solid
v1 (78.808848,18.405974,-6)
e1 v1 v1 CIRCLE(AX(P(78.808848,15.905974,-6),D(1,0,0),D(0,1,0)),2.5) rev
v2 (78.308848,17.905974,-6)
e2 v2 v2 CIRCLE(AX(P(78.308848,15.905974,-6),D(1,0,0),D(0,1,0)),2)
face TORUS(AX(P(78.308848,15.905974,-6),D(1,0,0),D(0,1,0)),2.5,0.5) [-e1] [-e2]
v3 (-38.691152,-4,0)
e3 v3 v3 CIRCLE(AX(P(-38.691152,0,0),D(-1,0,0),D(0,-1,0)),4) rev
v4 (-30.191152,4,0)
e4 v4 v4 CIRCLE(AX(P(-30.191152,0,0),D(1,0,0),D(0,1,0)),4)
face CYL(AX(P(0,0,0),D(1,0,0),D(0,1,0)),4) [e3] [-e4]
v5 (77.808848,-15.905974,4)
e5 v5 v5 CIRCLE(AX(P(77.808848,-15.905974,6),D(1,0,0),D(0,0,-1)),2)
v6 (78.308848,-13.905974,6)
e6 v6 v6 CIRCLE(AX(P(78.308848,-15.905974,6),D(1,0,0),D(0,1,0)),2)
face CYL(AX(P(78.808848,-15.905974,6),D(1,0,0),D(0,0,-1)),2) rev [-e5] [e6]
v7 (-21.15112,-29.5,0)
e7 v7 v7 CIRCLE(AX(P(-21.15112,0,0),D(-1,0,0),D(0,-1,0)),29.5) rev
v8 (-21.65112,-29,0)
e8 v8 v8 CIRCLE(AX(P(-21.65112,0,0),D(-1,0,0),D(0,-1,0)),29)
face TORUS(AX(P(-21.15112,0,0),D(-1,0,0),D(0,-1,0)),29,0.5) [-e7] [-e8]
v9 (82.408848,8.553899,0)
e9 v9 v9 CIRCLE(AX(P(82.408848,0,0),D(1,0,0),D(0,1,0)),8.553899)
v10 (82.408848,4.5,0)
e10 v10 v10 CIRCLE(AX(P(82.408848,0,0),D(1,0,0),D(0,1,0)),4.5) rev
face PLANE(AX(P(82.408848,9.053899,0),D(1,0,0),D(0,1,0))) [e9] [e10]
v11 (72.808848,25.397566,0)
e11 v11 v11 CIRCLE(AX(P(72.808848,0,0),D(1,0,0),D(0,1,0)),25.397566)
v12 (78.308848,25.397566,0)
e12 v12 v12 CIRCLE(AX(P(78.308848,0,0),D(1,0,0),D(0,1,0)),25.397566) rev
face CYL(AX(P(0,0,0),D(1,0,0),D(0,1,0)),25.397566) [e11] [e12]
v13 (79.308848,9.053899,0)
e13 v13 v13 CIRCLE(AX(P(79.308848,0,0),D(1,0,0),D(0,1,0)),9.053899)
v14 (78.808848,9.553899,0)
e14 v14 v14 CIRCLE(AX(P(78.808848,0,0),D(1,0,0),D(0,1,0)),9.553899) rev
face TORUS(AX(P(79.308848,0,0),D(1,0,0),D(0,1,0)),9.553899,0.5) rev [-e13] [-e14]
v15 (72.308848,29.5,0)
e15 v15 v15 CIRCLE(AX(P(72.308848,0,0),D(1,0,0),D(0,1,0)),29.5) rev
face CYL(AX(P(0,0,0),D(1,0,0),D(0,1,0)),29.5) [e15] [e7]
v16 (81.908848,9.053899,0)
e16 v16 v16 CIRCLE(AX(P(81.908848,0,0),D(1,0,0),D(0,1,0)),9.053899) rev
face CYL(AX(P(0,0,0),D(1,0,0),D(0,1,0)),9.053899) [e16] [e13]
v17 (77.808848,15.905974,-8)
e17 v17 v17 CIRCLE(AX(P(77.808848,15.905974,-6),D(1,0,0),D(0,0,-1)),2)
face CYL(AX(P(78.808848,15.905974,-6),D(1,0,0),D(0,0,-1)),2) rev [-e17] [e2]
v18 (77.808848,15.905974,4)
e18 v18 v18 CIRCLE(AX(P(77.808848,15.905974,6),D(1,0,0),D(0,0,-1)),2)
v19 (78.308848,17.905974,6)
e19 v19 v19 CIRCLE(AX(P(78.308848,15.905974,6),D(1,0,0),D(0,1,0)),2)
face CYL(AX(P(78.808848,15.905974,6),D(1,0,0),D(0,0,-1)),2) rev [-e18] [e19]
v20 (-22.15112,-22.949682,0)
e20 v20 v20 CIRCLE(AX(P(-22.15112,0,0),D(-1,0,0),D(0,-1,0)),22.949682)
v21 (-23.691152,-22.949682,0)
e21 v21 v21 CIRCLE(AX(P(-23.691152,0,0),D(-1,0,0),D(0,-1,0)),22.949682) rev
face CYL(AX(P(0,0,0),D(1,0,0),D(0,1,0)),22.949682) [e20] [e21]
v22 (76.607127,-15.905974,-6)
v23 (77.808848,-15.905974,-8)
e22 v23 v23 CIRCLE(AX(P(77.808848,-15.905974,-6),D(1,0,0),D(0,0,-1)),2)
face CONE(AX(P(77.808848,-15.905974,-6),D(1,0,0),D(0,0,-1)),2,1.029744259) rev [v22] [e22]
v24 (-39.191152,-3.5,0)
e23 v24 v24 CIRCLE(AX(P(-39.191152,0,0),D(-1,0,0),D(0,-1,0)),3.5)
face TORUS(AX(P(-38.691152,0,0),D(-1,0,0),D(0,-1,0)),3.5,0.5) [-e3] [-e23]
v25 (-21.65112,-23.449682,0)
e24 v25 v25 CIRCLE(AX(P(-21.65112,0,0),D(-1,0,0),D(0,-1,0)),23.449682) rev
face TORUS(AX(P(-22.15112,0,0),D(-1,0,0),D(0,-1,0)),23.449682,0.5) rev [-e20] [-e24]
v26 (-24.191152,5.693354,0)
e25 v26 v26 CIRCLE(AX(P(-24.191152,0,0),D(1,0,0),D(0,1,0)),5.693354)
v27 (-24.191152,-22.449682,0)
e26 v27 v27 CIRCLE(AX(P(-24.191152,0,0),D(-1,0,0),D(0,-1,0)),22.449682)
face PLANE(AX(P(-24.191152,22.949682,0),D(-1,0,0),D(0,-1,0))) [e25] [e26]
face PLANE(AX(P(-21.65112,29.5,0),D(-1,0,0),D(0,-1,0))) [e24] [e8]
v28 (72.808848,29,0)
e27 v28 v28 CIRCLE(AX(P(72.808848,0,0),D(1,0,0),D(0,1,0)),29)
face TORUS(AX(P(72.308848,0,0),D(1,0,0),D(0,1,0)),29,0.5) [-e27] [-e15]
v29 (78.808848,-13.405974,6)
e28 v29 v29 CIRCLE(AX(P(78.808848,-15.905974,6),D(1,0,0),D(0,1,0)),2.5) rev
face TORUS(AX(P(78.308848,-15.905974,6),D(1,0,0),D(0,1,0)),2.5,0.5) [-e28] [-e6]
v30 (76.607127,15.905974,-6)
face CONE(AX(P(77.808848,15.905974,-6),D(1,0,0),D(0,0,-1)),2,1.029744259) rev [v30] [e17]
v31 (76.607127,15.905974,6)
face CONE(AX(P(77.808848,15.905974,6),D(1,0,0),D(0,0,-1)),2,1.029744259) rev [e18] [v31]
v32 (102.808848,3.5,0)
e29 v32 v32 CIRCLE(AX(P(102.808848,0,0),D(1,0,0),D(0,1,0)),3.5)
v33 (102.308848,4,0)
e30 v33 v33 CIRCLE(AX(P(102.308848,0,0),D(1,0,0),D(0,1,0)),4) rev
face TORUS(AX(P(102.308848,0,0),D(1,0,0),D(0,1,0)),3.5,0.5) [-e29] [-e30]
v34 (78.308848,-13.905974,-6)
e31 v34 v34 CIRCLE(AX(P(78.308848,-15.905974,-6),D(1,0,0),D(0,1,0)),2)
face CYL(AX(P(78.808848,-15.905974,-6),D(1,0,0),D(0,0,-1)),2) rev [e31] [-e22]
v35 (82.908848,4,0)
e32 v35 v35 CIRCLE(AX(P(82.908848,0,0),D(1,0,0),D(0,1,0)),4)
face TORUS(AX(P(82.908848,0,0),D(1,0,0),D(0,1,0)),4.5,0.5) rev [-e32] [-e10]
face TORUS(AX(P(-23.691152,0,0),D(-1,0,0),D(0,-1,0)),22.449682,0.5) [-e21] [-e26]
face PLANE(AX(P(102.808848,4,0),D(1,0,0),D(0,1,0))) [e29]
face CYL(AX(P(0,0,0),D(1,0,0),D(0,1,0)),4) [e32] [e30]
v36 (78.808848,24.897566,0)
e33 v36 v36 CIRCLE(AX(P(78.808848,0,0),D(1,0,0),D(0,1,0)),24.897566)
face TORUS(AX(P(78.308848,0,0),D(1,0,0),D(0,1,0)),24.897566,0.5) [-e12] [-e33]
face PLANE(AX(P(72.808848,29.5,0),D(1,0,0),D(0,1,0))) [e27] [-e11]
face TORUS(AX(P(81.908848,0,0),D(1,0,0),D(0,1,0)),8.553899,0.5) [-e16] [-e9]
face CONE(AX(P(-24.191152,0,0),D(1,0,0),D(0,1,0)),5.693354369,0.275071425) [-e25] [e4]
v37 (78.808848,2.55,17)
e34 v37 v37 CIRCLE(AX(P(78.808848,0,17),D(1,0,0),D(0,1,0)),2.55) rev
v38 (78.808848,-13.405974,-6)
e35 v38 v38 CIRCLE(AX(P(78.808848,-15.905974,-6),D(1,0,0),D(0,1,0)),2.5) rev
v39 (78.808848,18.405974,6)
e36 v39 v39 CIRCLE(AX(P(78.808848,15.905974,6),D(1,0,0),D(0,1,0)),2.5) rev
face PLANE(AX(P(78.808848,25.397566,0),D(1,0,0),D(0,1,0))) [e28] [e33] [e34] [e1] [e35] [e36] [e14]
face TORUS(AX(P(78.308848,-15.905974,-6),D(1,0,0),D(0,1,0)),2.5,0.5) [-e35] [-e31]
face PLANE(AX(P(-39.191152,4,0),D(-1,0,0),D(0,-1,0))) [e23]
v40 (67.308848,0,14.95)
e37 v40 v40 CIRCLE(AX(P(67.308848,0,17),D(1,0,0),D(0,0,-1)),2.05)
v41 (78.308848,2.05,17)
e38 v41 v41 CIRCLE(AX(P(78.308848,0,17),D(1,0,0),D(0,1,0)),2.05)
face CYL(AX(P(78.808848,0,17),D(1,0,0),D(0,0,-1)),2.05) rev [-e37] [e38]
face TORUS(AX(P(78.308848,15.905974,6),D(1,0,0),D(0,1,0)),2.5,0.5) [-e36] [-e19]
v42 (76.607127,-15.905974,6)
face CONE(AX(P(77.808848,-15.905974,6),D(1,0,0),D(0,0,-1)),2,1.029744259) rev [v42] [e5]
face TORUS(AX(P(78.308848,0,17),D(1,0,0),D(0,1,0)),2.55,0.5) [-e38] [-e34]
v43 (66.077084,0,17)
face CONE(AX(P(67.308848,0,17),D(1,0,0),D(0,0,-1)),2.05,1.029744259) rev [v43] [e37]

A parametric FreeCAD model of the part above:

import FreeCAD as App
import Part
import Sketcher

V = App.Vector


def edges_at(feature, points):
    """Names of the edges that pass closest to the given points."""
    edges = feature.Shape.Edges
    near = lambda p: min(range(len(edges)), key=lambda i: edges[i].distToShape(Part.Vertex(*p))[0])
    return sorted({f"Edge{near(p) + 1}" for p in points})

doc = App.newDocument("Part")
params = doc.addObject("Spreadsheet::Sheet", "Params")
for row, (alias, value) in enumerate([
    ("sketch1_width", "9 mm"),
    ("sketch1_width2", "142 mm"),
    ("sketch1_width3", "6 mm"),
    ("sketch1_height", "4 mm"),
    ("sketch1_width4", "20.4 mm"),
    ("revolution_angle", "360 deg"),
    ("sketch2_diameter", "4 mm"),
    ("hole_diameter", "4 mm"),
    ("hole_depth", "1 mm"),
    ("sketch3_diameter", "4.1 mm"),
    ("hole2_diameter", "4.1 mm"),
    ("hole2_depth", "11.5 mm"),
    ("fillet_radius", "0.5 mm"),
], start=1):
    params.set(f"A{row}", alias)
    params.set(f"B{row}", "=" + value)
    params.setAlias(f"B{row}", alias)

body = doc.addObject("PartDesign::Body", "Body")

# Sketch on XY plane
sketch1 = body.newObject("Sketcher::SketchObject", "Sketch")
sketch1.AttachmentSupport = (doc.getObject("XY_Plane"), [""])
sketch1.MapMode = "FlatFace"
sketch1.addGeometry(Part.LineSegment(V(72.808848, 29.5, 0), V(-21.65112, 29.5, 0)), False)
sketch1.addGeometry(Part.LineSegment(V(-21.65112, 29.5, 0), V(-21.65112, 22.949682, 0)), False)
sketch1.addGeometry(Part.LineSegment(V(-21.65112, 22.949682, 0), V(-24.191152, 22.949682, 0)), False)
sketch1.addGeometry(Part.LineSegment(V(-24.191152, 22.949682, 0), V(-24.191152, 5.693354, 0)), False)
sketch1.addGeometry(Part.LineSegment(V(-24.191152, 5.693354, 0), V(-30.191152, 4, 0)), False)
sketch1.addGeometry(Part.LineSegment(V(-30.191152, 4, 0), V(-39.191152, 4, 0)), False)
sketch1.addGeometry(Part.LineSegment(V(-39.191152, 4, 0), V(-39.191152, 0, 0)), False)
sketch1.addGeometry(Part.LineSegment(V(-39.191152, 0, 0), V(102.808848, 0, 0)), False)
sketch1.addGeometry(Part.LineSegment(V(102.808848, 0, 0), V(102.808848, 4, 0)), False)
sketch1.addGeometry(Part.LineSegment(V(102.808848, 4, 0), V(82.408848, 4, 0)), False)
sketch1.addGeometry(Part.LineSegment(V(82.408848, 4, 0), V(82.408848, 9.053899, 0)), False)
sketch1.addGeometry(Part.LineSegment(V(82.408848, 9.053899, 0), V(78.808848, 9.053899, 0)), False)
sketch1.addGeometry(Part.LineSegment(V(78.808848, 9.053899, 0), V(78.808848, 25.397566, 0)), False)
sketch1.addGeometry(Part.LineSegment(V(78.808848, 25.397566, 0), V(72.808848, 25.397566, 0)), False)
sketch1.addGeometry(Part.LineSegment(V(72.808848, 25.397566, 0), V(72.808848, 29.5, 0)), False)
sketch1.addConstraint(Sketcher.Constraint("Coincident", 0, 2, 1, 1))
sketch1.addConstraint(Sketcher.Constraint("Coincident", 1, 2, 2, 1))
sketch1.addConstraint(Sketcher.Constraint("Coincident", 2, 2, 3, 1))
sketch1.addConstraint(Sketcher.Constraint("Coincident", 3, 2, 4, 1))
sketch1.addConstraint(Sketcher.Constraint("Coincident", 4, 2, 5, 1))
sketch1.addConstraint(Sketcher.Constraint("Coincident", 5, 2, 6, 1))
sketch1.addConstraint(Sketcher.Constraint("Coincident", 6, 2, 7, 1))
sketch1.addConstraint(Sketcher.Constraint("Coincident", 7, 2, 8, 1))
sketch1.addConstraint(Sketcher.Constraint("Coincident", 8, 2, 9, 1))
sketch1.addConstraint(Sketcher.Constraint("Coincident", 9, 2, 10, 1))
sketch1.addConstraint(Sketcher.Constraint("Coincident", 10, 2, 11, 1))
sketch1.addConstraint(Sketcher.Constraint("Coincident", 11, 2, 12, 1))
sketch1.addConstraint(Sketcher.Constraint("Coincident", 12, 2, 13, 1))
sketch1.addConstraint(Sketcher.Constraint("Coincident", 13, 2, 14, 1))
sketch1.addConstraint(Sketcher.Constraint("Coincident", 14, 2, 0, 1))
sketch1.addConstraint(Sketcher.Constraint("Horizontal", 0))
sketch1.addConstraint(Sketcher.Constraint("Vertical", 1))
sketch1.addConstraint(Sketcher.Constraint("Horizontal", 2))
sketch1.addConstraint(Sketcher.Constraint("Vertical", 3))
sketch1.addConstraint(Sketcher.Constraint("Horizontal", 5))
sketch1.addConstraint(Sketcher.Constraint("Vertical", 6))
sketch1.addConstraint(Sketcher.Constraint("Horizontal", 7))
sketch1.addConstraint(Sketcher.Constraint("Vertical", 8))
sketch1.addConstraint(Sketcher.Constraint("Horizontal", 9))
sketch1.addConstraint(Sketcher.Constraint("Vertical", 10))
sketch1.addConstraint(Sketcher.Constraint("Horizontal", 11))
sketch1.addConstraint(Sketcher.Constraint("Vertical", 12))
sketch1.addConstraint(Sketcher.Constraint("Horizontal", 13))
sketch1.addConstraint(Sketcher.Constraint("Vertical", 14))
sketch1.addConstraint(Sketcher.Constraint("PointOnObject", 6, 2, -1))
sketch1.addConstraint(Sketcher.Constraint("Horizontal", 5, 2, 8, 2))
sketch1.addConstraint(Sketcher.Constraint("DistanceX", 5, 2, 5, 1, 9.0))
sketch1.addConstraint(Sketcher.Constraint("DistanceX", 7, 1, 7, 2, 142.0))
sketch1.addConstraint(Sketcher.Constraint("DistanceX", 13, 2, 13, 1, 6.0))
sketch1.addConstraint(Sketcher.Constraint("DistanceY", 6, 2, 6, 1, 4.0))
sketch1.addConstraint(Sketcher.Constraint("DistanceX", 9, 2, 9, 1, 20.4))
sketch1.addConstraint(Sketcher.Constraint("DistanceX", 11, 2, 11, 1, 3.6))
sketch1.addConstraint(Sketcher.Constraint("DistanceX", 4, 2, 3, 2, 6.0))
sketch1.addConstraint(Sketcher.Constraint("DistanceY", -1, 1, 0, 2, 29.5))
sketch1.addConstraint(Sketcher.Constraint("DistanceY", 10, 1, 10, 2, 5.053899))
sketch1.addConstraint(Sketcher.Constraint("DistanceX", 0, 2, 0, 1, 94.459968))
sketch1.addConstraint(Sketcher.Constraint("DistanceY", 1, 2, 1, 1, 6.550318))
sketch1.addConstraint(Sketcher.Constraint("DistanceY", 3, 2, 3, 1, 17.256327))
sketch1.addConstraint(Sketcher.Constraint("DistanceY", 12, 1, 12, 2, 16.343667))
sketch1.addConstraint(Sketcher.Constraint("DistanceX", 0, 2, -1, 1, 21.65112))
sketch1.setExpression("Constraints[31]", "Params.sketch1_width")
sketch1.setExpression("Constraints[32]", "Params.sketch1_width2")
sketch1.setExpression("Constraints[33]", "Params.sketch1_width3")
sketch1.setExpression("Constraints[34]", "Params.sketch1_height")
sketch1.setExpression("Constraints[35]", "Params.sketch1_width4")
revolution = body.newObject("PartDesign::Revolution", "Revolution")
revolution.Profile = sketch1
revolution.ReferenceAxis = (sketch1, ["H_Axis"])
revolution.setExpression("Angle", "Params.revolution_angle")

# Sketch on YZ plane
sketch2 = body.newObject("Sketcher::SketchObject", "Sketch001")
sketch2.AttachmentSupport = (doc.getObject("YZ_Plane"), [""])
sketch2.MapMode = "FlatFace"
sketch2.AttachmentOffset = App.Placement(V(0, 0, 78.808848), App.Rotation())
sketch2.addGeometry(Part.Circle(V(15.905974, 6, 0), V(0, 0, 1), 2), False)
sketch2.addGeometry(Part.Circle(V(15.905974, -6, 0), V(0, 0, 1), 2), False)
sketch2.addGeometry(Part.Circle(V(-15.905974, 6, 0), V(0, 0, 1), 2), False)
sketch2.addGeometry(Part.Circle(V(-15.905974, -6, 0), V(0, 0, 1), 2), False)
sketch2.addConstraint(Sketcher.Constraint("Equal", 0, 1))
sketch2.addConstraint(Sketcher.Constraint("Equal", 1, 2))
sketch2.addConstraint(Sketcher.Constraint("Equal", 2, 3))
sketch2.addConstraint(Sketcher.Constraint("Symmetric", 1, 3, 2, 3, -1, 1))
sketch2.addConstraint(Sketcher.Constraint("Symmetric", 0, 3, 3, 3, -1, 1))
sketch2.addConstraint(Sketcher.Constraint("Symmetric", 0, 3, 2, 3, -2))
sketch2.addConstraint(Sketcher.Constraint("Diameter", 0, 4.0))
sketch2.addConstraint(Sketcher.Constraint("DistanceY", -1, 1, 0, 3, 6.0))
sketch2.addConstraint(Sketcher.Constraint("DistanceX", -1, 1, 0, 3, 15.905974))
sketch2.setExpression("Constraints[6]", "Params.sketch2_diameter")
doc.recompute()
hole = body.newObject("PartDesign::Hole", "Hole")
hole.Profile = sketch2
hole.ThreadType = "None"
hole.setExpression("Diameter", "Params.hole_diameter")
hole.DepthType = "Dimension"
hole.setExpression("Depth", "Params.hole_depth")
hole.DrillPoint = "Angled"
hole.DrillPointAngle = 118

# Sketch on YZ plane
sketch3 = body.newObject("Sketcher::SketchObject", "Sketch002")
sketch3.AttachmentSupport = (doc.getObject("YZ_Plane"), [""])
sketch3.MapMode = "FlatFace"
sketch3.AttachmentOffset = App.Placement(V(0, 0, 78.808848), App.Rotation())
sketch3.addGeometry(Part.Circle(V(0, 17, 0), V(0, 0, 1), 2.05), False)
sketch3.addConstraint(Sketcher.Constraint("PointOnObject", 0, 3, -2))
sketch3.addConstraint(Sketcher.Constraint("Diameter", 0, 4.1))
sketch3.addConstraint(Sketcher.Constraint("DistanceY", -1, 1, 0, 3, 17.0))
sketch3.setExpression("Constraints[1]", "Params.sketch3_diameter")
doc.recompute()
hole2 = body.newObject("PartDesign::Hole", "Hole001")
hole2.Profile = sketch3
hole2.ThreadType = "None"
hole2.setExpression("Diameter", "Params.hole2_diameter")
hole2.DepthType = "Dimension"
hole2.setExpression("Depth", "Params.hole2_depth")
hole2.DrillPoint = "Angled"
hole2.DrillPointAngle = 118
doc.recompute()

fillet = body.newObject("PartDesign::Fillet", "Fillet")
fillet.Base = (hole2, edges_at(hole2, [
    (-21.651, -29.5, 0),
    (72.809, -29.5, 0),
    (78.809, -25.398, 0),
    (78.809, -9.054, 0),
    (82.409, -9.054, 0),
    (82.409, -4, 0),
    (102.809, -4, 0),
    (-39.191, -4, 0),
    (-24.191, -22.95, 0),
    (-21.651, -22.95, 0),
    (78.809, -15.906, -8),
    (78.809, -15.906, 4),
    (78.809, 15.906, -8),
    (78.809, 15.906, 4),
    (78.809, 0, 14.95),
]))
fillet.setExpression("Radius", "Params.fillet_radius")

doc.recompute()
